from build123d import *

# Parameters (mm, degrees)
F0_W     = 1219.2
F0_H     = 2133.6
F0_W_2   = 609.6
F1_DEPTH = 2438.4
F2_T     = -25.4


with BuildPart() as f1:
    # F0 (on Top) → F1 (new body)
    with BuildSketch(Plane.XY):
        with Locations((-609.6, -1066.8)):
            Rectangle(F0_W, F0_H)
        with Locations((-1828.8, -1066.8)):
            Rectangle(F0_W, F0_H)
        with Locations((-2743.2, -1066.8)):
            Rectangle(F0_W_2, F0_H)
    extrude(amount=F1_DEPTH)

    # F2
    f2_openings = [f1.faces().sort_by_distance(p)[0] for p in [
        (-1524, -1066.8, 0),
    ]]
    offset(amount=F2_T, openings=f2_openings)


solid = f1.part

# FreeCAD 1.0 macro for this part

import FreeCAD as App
import Part
import Sketcher

V = App.Vector
Q = App.Units.Quantity


def faces_at(feature, points):
    """Names of the faces that lie closest to the given points."""
    faces = feature.Shape.Faces
    near = lambda p: min(range(len(faces)), key=lambda i: faces[i].distToShape(Part.Vertex(*p))[0])
    return sorted({f"Face{near(p) + 1}" for p in points})

doc = App.newDocument("Part")
body = doc.addObject("PartDesign::Body", "Body")

# Sketch on XY plane
sketch1 = body.newObject("Sketcher::SketchObject", "Sketch")
sketch1.AttachmentSupport = (doc.getObject("XY_Plane"), [""])
sketch1.MapMode = "FlatFace"
sketch1.addGeometry(Part.LineSegment(V(0, -2133.6, 0), V(0, 0, 0)), False)
sketch1.addGeometry(Part.LineSegment(V(0, 0, 0), V(-3048, 0, 0)), False)
sketch1.addGeometry(Part.LineSegment(V(-3048, 0, 0), V(-3048, -2133.6, 0)), False)
sketch1.addGeometry(Part.LineSegment(V(-3048, -2133.6, 0), V(0, -2133.6, 0)), False)
sketch1.addConstraint(Sketcher.Constraint("Coincident", 0, 2, 1, 1))
sketch1.addConstraint(Sketcher.Constraint("Coincident", 1, 2, 2, 1))
sketch1.addConstraint(Sketcher.Constraint("Coincident", 2, 2, 3, 1))
sketch1.addConstraint(Sketcher.Constraint("Coincident", 3, 2, 0, 1))
sketch1.addConstraint(Sketcher.Constraint("Vertical", 0))
sketch1.addConstraint(Sketcher.Constraint("Horizontal", 1))
sketch1.addConstraint(Sketcher.Constraint("Vertical", 2))
sketch1.addConstraint(Sketcher.Constraint("Horizontal", 3))
sketch1.addConstraint(Sketcher.Constraint("Coincident", 0, 2, -1, 1))
sketch1.addConstraint(Sketcher.Constraint("DistanceX", 1, 2, 1, 1, Q("120 in")))
sketch1.addConstraint(Sketcher.Constraint("DistanceY", 0, 1, 0, 2, Q("84 in")))
pad1 = body.newObject("PartDesign::Pad", "Pad")
pad1.Profile = sketch1
pad1.Length = Q("96 in")
doc.recompute()

thickness = body.newObject("PartDesign::Thickness", "Thickness")
thickness.Base = (pad1, faces_at(pad1, [(-1524, -1066.8, 0)]))
thickness.Value = Q("1 in")
thickness.Reversed = True
thickness.Join = "Arc"

doc.recompute()
